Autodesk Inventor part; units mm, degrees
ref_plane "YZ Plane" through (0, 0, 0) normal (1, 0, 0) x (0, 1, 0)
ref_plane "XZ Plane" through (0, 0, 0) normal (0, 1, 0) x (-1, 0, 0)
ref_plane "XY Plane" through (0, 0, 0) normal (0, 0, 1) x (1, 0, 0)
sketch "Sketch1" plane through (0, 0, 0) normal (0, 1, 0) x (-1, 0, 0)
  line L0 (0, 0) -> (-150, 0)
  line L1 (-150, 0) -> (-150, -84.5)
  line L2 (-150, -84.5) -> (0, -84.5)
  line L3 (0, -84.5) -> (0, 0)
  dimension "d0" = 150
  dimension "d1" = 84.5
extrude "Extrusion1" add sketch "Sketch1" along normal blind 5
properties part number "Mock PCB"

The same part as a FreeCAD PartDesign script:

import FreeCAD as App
import Part
import Sketcher
Q = App.Units.Quantity

doc = App.newDocument("Part")
body = doc.addObject("PartDesign::Body", "Body")

# Sketch on XZ plane
sketch1 = body.newObject("Sketcher::SketchObject", "Sketch")
sketch1.AttachmentSupport = (doc.getObject("XZ_Plane"), [""])
sketch1.MapMode = "FlatFace"
sketch1.addGeometry([
    Part.LineSegment(App.Vector(0, -84, 0), App.Vector(0, 0, 0)),
    Part.LineSegment(App.Vector(0, 0, 0), App.Vector(150, 0, 0)),
    Part.LineSegment(App.Vector(150, 0, 0), App.Vector(150, -84, 0)),
    Part.LineSegment(App.Vector(150, -84, 0), App.Vector(0, -84, 0)),
], False)
sketch1.addConstraint([
    Sketcher.Constraint("Coincident", 0, 2, 1, 1),
    Sketcher.Constraint("Coincident", 1, 2, 2, 1),
    Sketcher.Constraint("Coincident", 2, 2, 3, 1),
    Sketcher.Constraint("Coincident", 3, 2, 0, 1),
    Sketcher.Constraint("Vertical", 0),
    Sketcher.Constraint("Horizontal", 1),
    Sketcher.Constraint("Vertical", 2),
    Sketcher.Constraint("Horizontal", 3),
    Sketcher.Constraint("Coincident", 0, 2, -1, 1),
    Sketcher.Constraint("DistanceX", 1, 1, 1, 2, Q("150 mm")),
    Sketcher.Constraint("DistanceY", 0, 1, 0, 2, Q("84.5 mm")),
])
pad1 = body.newObject("PartDesign::Pad", "Pad")
pad1.Profile = sketch1
pad1.Length = 5
pad1.Reversed = True

doc.recompute()
